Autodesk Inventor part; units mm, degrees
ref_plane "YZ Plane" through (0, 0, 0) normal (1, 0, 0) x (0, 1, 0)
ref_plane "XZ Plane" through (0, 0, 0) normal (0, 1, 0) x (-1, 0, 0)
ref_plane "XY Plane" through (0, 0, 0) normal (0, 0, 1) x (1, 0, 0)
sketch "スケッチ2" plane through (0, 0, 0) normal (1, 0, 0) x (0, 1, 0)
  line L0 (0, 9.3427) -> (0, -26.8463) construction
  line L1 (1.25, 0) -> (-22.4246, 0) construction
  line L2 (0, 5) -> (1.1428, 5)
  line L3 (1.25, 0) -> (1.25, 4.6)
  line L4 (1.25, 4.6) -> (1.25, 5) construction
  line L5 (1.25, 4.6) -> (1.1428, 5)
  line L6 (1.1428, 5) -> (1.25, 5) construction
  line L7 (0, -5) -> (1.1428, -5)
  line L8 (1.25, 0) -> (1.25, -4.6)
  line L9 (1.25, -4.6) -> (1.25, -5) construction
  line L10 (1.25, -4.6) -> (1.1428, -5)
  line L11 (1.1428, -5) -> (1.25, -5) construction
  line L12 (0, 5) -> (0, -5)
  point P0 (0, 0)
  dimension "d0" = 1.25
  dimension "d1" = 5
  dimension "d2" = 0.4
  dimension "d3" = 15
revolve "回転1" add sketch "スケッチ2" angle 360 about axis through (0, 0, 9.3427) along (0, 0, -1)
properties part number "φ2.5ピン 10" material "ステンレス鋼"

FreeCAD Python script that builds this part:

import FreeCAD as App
import Part
import Sketcher
from FreeCAD import Vector
Q = App.Units.Quantity

doc = App.newDocument("Part")
body = doc.addObject("PartDesign::Body", "Body")

sketch1 = body.newObject("Sketcher::SketchObject", "Sketch")
sketch1.AttachmentSupport = (doc.getObject("YZ_Plane"), [""])
sketch1.MapMode = "FlatFace"
sketch1.addGeometry([
    Part.LineSegment(Vector(1.1428, 5, 0), Vector(0, 5, 0)),
    Part.LineSegment(Vector(0, 5, 0), Vector(0, -5, 0)),
    Part.LineSegment(Vector(0, -5, 0), Vector(1.1428, -5, 0)),
    Part.LineSegment(Vector(1.1428, -5, 0), Vector(1.25, -4.6, 0)),
    Part.LineSegment(Vector(1.25, -4.6, 0), Vector(1.25, 4.6, 0)),
    Part.LineSegment(Vector(1.25, 4.6, 0), Vector(1.1428, 5, 0)),
], False)
sketch1.addConstraint([
    Sketcher.Constraint("Coincident", 0, 2, 1, 1),
    Sketcher.Constraint("Coincident", 1, 2, 2, 1),
    Sketcher.Constraint("Coincident", 2, 2, 3, 1),
    Sketcher.Constraint("Coincident", 3, 2, 4, 1),
    Sketcher.Constraint("Coincident", 4, 2, 5, 1),
    Sketcher.Constraint("Coincident", 5, 2, 0, 1),
    Sketcher.Constraint("Horizontal", 0),
    Sketcher.Constraint("Vertical", 1),
    Sketcher.Constraint("Horizontal", 2),
    Sketcher.Constraint("Vertical", 4),
    Sketcher.Constraint("Symmetric", 0, 2, 1, 2, -1, 1),
    Sketcher.Constraint("Vertical", 2, 2, 5, 2),
    Sketcher.Constraint("Equal", 3, 5),
    Sketcher.Constraint("DistanceX", 0, 2, 0, 1, Q("0.045 in")),
    Sketcher.Constraint("DistanceY", -1, 1, 0, 2, 5.0),
    Sketcher.Constraint("DistanceX", -1, 1, 3, 2, 1.25),
    Sketcher.Constraint("DistanceY", 2, 2, 3, 2, 0.4),
])
revolution = body.newObject("PartDesign::Revolution", "Revolution")
revolution.Profile = sketch1
revolution.ReferenceAxis = (sketch1, ["V_Axis"])
revolution.Angle = 360

doc.recompute()
